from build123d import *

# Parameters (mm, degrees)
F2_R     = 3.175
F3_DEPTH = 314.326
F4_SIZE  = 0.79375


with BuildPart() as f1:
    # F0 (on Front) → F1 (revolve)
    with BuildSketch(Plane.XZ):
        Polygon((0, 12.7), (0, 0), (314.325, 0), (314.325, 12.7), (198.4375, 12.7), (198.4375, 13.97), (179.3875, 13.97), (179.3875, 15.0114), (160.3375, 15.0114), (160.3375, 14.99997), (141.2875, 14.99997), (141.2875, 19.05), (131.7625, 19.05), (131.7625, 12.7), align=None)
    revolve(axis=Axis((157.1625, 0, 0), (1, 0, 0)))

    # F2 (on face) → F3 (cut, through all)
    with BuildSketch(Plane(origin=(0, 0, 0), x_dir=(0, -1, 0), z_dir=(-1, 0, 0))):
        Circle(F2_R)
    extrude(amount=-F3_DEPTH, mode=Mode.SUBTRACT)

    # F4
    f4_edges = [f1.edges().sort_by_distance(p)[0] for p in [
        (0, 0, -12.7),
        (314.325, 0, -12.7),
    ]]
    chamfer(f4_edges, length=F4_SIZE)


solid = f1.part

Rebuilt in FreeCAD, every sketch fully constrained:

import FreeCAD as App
import Part
import Sketcher

V = App.Vector
Q = App.Units.Quantity


def edges_at(feature, points):
    """Names of the edges that pass closest to the given points."""
    edges = feature.Shape.Edges
    near = lambda p: min(range(len(edges)), key=lambda i: edges[i].distToShape(Part.Vertex(*p))[0])
    return sorted({f"Edge{near(p) + 1}" for p in points})


def add_polygon(sketch, points):
    """Adds a closed chain of lines whose ends are joined by coincident constraints."""
    first, n = sketch.GeometryCount, len(points)
    for a, b in zip(points, points[1:] + points[:1]):
        sketch.addGeometry(Part.LineSegment(App.Vector(*a, 0), App.Vector(*b, 0)), False)
    for i in range(n):
        sketch.addConstraint(Sketcher.Constraint("Coincident", first + i, 2, first + (i + 1) % n, 1))

doc = App.newDocument("Part")
params = doc.addObject("Spreadsheet::Sheet", "Params")
for row, (alias, value) in enumerate([
    ("sketch1_height", "0.5 in"),
    ("sketch1_width", "0.75 in"),
    ("sketch1_height2", "0.05 in"),
    ("sketch1_height3", "0.25 in"),
    ("sketch1_width2", "12.375 in"),
    ("revolution_angle", "360 deg"),
    ("sketch2_diameter", "0.25 in"),
    ("chamfer_size", "0.03125 in"),
], start=1):
    params.set(f"A{row}", alias)
    params.set(f"B{row}", "=" + value)
    params.setAlias(f"B{row}", alias)

body = doc.addObject("PartDesign::Body", "Body")

sketch1 = body.newObject("Sketcher::SketchObject", "Sketch")
sketch1.AttachmentSupport = (doc.getObject("XZ_Plane"), [""])
sketch1.MapMode = "FlatFace"
add_polygon(sketch1, [(0, 12.7), (0, 0), (314.325, 0), (314.325, 12.7), (198.438, 12.7), (198.438, 13.97), (179.387, 13.97), (179.387, 15.011), (160.338, 15.011), (160.338, 15), (141.287, 15), (141.287, 19.05), (131.762, 19.05), (131.762, 12.7)])
sketch1.addConstraint(Sketcher.Constraint("Vertical", 0))
sketch1.addConstraint(Sketcher.Constraint("Horizontal", 1))
sketch1.addConstraint(Sketcher.Constraint("Vertical", 2))
sketch1.addConstraint(Sketcher.Constraint("Horizontal", 3))
sketch1.addConstraint(Sketcher.Constraint("Vertical", 4))
sketch1.addConstraint(Sketcher.Constraint("Horizontal", 5))
sketch1.addConstraint(Sketcher.Constraint("Vertical", 6))
sketch1.addConstraint(Sketcher.Constraint("Horizontal", 7))
sketch1.addConstraint(Sketcher.Constraint("Vertical", 8))
sketch1.addConstraint(Sketcher.Constraint("Horizontal", 9))
sketch1.addConstraint(Sketcher.Constraint("Vertical", 10))
sketch1.addConstraint(Sketcher.Constraint("Horizontal", 11))
sketch1.addConstraint(Sketcher.Constraint("Vertical", 12))
sketch1.addConstraint(Sketcher.Constraint("Horizontal", 13))
sketch1.addConstraint(Sketcher.Constraint("Coincident", 0, 2, -1, 1))
sketch1.addConstraint(Sketcher.Constraint("Horizontal", 3, 2, 12, 2))
sketch1.addConstraint(Sketcher.Constraint("Equal", 5, 7))
sketch1.addConstraint(Sketcher.Constraint("Equal", 7, 9))
sketch1.addConstraint(Sketcher.Constraint("DistanceY", 0, 2, 0, 1, Q("0.5 in")))
sketch1.addConstraint(Sketcher.Constraint("DistanceX", 5, 2, 5, 1, Q("0.75 in")))
sketch1.addConstraint(Sketcher.Constraint("DistanceY", 4, 1, 4, 2, Q("0.05 in")))
sketch1.addConstraint(Sketcher.Constraint("DistanceY", 12, 2, 12, 1, Q("0.25 in")))
sketch1.addConstraint(Sketcher.Constraint("DistanceX", 1, 1, 1, 2, Q("12.375 in")))
sketch1.addConstraint(Sketcher.Constraint("DistanceX", 3, 2, 3, 1, Q("4.5625 in")))
sketch1.addConstraint(Sketcher.Constraint("DistanceX", 11, 2, 11, 1, Q("0.375 in")))
sketch1.addConstraint(Sketcher.Constraint("DistanceY", 6, 1, 6, 2, Q("0.041 in")))
sketch1.addConstraint(Sketcher.Constraint("DistanceY", 8, 2, 8, 1, 0.01143))
sketch1.setExpression("Constraints[32]", "Params.sketch1_height")
sketch1.setExpression("Constraints[33]", "Params.sketch1_width")
sketch1.setExpression("Constraints[34]", "Params.sketch1_height2")
sketch1.setExpression("Constraints[35]", "Params.sketch1_height3")
sketch1.setExpression("Constraints[36]", "Params.sketch1_width2")
revolution = body.newObject("PartDesign::Revolution", "Revolution")
revolution.Profile = sketch1
revolution.ReferenceAxis = (sketch1, ["H_Axis"])
revolution.setExpression("Angle", "Params.revolution_angle")

sketch2 = body.newObject("Sketcher::SketchObject", "Sketch001")
sketch2.AttachmentSupport = (doc.getObject("YZ_Plane"), [""])
sketch2.MapMode = "FlatFace"
sketch2.addGeometry(Part.Circle(V(0, 0, 0), V(0, 0, 1), 3.2), False)
sketch2.addConstraint(Sketcher.Constraint("Coincident", 0, 3, -1, 1))
sketch2.addConstraint(Sketcher.Constraint("Diameter", 0, Q("0.25 in")))
sketch2.setExpression("Constraints[1]", "Params.sketch2_diameter")
pocket1 = body.newObject("PartDesign::Pocket", "Pocket")
pocket1.Profile = sketch2
pocket1.Type = "ThroughAll"
pocket1.Reversed = True
doc.recompute()

chamfer = body.newObject("PartDesign::Chamfer", "Chamfer")
chamfer.Base = (pocket1, edges_at(pocket1, [(0, 0, -12.7), (314.325, 0, -12.7)]))
chamfer.setExpression("Size", "Params.chamfer_size")

doc.recompute()
